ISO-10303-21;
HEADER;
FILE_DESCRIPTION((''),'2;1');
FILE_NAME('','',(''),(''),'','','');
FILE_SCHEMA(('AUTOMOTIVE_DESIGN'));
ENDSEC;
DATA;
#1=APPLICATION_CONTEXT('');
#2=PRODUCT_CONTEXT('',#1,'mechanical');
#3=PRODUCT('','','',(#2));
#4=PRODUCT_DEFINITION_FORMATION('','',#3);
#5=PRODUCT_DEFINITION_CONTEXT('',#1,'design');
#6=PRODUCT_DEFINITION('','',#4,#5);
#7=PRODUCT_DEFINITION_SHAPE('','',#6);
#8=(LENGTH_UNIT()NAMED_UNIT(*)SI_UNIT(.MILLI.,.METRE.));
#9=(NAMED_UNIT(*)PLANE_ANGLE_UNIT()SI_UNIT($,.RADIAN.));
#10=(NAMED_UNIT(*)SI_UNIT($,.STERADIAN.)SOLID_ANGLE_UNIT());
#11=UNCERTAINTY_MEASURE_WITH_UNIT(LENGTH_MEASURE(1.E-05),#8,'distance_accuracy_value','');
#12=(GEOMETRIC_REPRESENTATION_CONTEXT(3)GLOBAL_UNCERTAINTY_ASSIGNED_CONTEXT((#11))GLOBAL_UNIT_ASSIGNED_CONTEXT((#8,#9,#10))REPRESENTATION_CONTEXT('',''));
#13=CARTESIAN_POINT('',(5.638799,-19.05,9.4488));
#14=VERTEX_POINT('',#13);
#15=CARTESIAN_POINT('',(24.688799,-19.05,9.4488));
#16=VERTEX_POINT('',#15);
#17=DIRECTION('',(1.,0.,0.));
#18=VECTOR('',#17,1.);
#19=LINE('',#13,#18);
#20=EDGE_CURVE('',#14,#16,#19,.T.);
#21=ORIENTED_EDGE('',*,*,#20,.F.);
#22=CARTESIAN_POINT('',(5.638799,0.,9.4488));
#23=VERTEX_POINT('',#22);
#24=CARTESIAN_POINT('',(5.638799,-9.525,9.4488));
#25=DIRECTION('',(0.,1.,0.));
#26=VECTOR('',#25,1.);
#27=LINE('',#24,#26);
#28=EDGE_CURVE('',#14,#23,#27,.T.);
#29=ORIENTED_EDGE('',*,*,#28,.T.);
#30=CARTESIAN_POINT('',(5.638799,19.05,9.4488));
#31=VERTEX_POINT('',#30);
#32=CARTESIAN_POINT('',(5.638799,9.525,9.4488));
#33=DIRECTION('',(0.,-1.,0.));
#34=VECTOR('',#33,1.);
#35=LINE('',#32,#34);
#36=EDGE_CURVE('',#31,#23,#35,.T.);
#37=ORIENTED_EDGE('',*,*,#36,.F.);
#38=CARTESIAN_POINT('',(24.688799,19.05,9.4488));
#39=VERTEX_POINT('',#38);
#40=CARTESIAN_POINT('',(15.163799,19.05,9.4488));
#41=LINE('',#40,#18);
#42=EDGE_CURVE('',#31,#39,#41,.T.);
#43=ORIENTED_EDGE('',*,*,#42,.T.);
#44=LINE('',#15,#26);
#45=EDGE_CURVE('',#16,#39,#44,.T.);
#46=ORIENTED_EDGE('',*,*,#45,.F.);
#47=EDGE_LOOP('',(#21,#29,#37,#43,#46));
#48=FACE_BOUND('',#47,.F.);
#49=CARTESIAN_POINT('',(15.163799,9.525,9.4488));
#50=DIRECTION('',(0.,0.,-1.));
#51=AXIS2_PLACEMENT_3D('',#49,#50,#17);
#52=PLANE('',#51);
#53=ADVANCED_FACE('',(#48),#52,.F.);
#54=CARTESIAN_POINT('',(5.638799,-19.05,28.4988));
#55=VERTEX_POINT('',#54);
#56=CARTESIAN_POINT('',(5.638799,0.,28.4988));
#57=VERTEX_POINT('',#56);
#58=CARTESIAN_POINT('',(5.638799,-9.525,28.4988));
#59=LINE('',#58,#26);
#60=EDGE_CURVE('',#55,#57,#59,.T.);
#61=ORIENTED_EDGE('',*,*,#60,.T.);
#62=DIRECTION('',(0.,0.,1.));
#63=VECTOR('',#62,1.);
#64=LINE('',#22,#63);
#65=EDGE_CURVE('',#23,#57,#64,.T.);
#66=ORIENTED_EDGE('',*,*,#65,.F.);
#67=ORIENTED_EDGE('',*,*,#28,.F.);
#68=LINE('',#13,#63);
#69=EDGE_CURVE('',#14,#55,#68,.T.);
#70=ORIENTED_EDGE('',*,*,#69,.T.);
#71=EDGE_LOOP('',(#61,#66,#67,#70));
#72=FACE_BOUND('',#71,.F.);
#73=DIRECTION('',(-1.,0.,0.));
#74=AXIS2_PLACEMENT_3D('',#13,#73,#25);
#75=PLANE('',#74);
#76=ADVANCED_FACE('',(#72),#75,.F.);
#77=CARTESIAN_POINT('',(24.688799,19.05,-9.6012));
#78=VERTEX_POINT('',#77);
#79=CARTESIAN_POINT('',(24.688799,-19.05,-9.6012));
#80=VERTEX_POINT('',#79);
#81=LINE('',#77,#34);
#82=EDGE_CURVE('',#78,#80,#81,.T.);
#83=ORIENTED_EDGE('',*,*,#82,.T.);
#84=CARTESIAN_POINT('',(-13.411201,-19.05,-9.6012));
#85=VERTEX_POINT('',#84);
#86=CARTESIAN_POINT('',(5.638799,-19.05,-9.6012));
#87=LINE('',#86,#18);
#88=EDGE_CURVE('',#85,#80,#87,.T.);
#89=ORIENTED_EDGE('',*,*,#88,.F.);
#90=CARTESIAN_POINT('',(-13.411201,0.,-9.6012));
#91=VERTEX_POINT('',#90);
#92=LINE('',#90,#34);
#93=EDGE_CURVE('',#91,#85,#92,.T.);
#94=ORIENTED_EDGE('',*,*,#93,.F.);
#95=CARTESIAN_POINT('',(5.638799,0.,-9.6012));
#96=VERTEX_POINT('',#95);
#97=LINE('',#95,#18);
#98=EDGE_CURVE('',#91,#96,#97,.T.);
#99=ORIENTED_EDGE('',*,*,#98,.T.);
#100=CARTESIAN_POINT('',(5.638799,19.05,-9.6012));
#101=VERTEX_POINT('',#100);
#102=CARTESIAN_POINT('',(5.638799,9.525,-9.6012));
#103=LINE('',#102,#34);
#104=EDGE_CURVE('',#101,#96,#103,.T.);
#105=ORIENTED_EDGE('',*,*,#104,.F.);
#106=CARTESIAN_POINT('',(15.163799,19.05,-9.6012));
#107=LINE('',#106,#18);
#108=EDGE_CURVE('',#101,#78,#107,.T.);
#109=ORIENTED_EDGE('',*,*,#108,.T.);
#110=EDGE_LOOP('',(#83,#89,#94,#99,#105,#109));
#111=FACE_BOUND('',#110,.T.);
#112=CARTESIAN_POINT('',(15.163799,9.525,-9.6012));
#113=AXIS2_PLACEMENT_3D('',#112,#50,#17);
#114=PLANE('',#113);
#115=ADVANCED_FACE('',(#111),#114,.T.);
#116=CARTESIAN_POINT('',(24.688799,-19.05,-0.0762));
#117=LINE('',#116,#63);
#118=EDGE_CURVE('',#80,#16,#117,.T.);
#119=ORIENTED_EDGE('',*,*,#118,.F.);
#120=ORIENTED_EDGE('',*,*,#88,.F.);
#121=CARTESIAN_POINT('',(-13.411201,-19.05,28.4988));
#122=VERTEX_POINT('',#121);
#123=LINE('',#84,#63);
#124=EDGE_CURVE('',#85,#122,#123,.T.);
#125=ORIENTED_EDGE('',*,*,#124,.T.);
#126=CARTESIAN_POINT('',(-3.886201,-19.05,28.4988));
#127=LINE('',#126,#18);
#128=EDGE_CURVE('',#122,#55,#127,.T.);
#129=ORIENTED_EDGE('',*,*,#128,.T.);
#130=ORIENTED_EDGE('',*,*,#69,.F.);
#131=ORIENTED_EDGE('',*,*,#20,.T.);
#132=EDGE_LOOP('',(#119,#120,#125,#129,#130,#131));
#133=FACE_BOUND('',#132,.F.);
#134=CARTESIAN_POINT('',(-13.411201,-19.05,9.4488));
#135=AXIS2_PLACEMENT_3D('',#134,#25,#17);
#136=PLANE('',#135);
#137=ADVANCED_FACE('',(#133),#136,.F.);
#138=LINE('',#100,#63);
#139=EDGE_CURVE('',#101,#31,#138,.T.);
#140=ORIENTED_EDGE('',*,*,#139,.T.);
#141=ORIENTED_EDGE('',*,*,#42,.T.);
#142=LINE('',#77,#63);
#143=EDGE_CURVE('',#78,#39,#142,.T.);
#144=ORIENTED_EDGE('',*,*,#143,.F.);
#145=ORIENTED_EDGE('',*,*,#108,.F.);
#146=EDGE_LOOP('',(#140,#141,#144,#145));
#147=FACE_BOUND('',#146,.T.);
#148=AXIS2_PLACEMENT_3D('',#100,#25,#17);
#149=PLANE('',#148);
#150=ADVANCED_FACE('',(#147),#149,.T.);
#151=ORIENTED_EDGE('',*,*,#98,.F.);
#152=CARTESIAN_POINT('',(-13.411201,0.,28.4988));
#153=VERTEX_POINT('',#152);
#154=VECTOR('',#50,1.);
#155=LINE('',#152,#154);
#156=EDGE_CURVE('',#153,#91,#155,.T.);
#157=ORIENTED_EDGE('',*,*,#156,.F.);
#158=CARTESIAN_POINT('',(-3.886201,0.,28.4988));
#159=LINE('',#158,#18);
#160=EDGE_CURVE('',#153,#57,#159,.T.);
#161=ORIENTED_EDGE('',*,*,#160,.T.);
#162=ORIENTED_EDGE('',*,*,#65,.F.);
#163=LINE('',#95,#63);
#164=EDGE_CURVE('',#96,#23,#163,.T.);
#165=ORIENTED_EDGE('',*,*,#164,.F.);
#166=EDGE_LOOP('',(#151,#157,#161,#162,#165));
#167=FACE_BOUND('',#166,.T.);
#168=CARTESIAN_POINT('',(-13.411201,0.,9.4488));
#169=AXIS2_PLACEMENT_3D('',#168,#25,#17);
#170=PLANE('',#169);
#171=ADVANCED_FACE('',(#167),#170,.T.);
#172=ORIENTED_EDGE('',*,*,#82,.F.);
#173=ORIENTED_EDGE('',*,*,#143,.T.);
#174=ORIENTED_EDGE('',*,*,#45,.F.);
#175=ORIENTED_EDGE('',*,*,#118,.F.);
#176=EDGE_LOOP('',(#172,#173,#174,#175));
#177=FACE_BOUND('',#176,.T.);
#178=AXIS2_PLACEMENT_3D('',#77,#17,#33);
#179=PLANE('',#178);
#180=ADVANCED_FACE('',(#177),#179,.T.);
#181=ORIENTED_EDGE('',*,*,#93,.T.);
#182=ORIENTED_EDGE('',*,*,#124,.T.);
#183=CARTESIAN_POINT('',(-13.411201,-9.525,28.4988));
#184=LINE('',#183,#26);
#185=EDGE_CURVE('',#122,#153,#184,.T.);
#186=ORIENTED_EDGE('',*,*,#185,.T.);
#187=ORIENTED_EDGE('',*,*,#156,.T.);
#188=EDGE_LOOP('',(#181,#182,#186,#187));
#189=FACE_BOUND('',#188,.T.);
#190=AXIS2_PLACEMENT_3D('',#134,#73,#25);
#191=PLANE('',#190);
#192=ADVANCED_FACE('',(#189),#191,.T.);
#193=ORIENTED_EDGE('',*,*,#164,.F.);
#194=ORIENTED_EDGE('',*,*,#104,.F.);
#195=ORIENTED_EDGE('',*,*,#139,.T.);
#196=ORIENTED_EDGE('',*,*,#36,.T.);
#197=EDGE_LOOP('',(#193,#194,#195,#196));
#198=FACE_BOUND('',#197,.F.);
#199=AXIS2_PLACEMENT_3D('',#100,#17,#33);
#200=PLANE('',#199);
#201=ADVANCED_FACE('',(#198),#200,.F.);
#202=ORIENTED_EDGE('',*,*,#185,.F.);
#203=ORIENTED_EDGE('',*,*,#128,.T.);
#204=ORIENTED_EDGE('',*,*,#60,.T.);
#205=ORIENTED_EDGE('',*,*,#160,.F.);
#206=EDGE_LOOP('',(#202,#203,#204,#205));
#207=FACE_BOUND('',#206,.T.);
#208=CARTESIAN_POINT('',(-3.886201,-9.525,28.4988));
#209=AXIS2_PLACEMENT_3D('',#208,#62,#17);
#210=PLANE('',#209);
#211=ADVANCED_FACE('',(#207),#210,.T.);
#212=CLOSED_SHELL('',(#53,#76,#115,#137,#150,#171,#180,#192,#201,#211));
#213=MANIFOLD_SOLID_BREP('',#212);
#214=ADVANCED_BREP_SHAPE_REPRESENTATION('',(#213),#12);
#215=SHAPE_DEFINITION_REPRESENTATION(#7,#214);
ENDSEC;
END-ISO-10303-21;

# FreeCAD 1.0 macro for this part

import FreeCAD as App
import Part
import Sketcher

V = App.Vector
Q = App.Units.Quantity

doc = App.newDocument("Part")
params = doc.addObject("Spreadsheet::Sheet", "Params")
for row, (alias, value) in enumerate([
    ("sketch1_width", "1.5 in"),
    ("sketch1_height", "0.75 in"),
    ("pad1_length", "0.75 in"),
    ("sketch2_width", "0.75 in"),
    ("pad2_length", "0.75 in"),
    ("sketch3_width", "0.75 in"),
    ("pad3_length", "0.75 in"),
], start=1):
    params.set(f"A{row}", alias)
    params.set(f"B{row}", "=" + value)
    params.setAlias(f"B{row}", alias)

body = doc.addObject("PartDesign::Body", "Body")

sketch1 = body.newObject("Sketcher::SketchObject", "Sketch")
sketch1.AttachmentSupport = (doc.getObject("XZ_Plane"), [""])
sketch1.MapMode = "FlatFace"
sketch1.addGeometry(Part.LineSegment(V(-13, 9, 0), V(-13, -10, 0)), False)
sketch1.addGeometry(Part.LineSegment(V(-13, -10, 0), V(25, -10, 0)), False)
sketch1.addGeometry(Part.LineSegment(V(25, -10, 0), V(25, 9, 0)), False)
sketch1.addGeometry(Part.LineSegment(V(25, 9, 0), V(-13, 9, 0)), False)
sketch1.addConstraint(Sketcher.Constraint("Coincident", 0, 2, 1, 1))
sketch1.addConstraint(Sketcher.Constraint("Coincident", 1, 2, 2, 1))
sketch1.addConstraint(Sketcher.Constraint("Coincident", 2, 2, 3, 1))
sketch1.addConstraint(Sketcher.Constraint("Coincident", 3, 2, 0, 1))
sketch1.addConstraint(Sketcher.Constraint("Vertical", 0))
sketch1.addConstraint(Sketcher.Constraint("Horizontal", 1))
sketch1.addConstraint(Sketcher.Constraint("Vertical", 2))
sketch1.addConstraint(Sketcher.Constraint("Horizontal", 3))
sketch1.addConstraint(Sketcher.Constraint("DistanceX", 1, 1, 1, 2, Q("1.5 in")))
sketch1.addConstraint(Sketcher.Constraint("DistanceY", 0, 2, 0, 1, Q("0.75 in")))
sketch1.addConstraint(Sketcher.Constraint("DistanceX", 0, 2, -1, 1, Q("0.528 in")))
sketch1.addConstraint(Sketcher.Constraint("DistanceY", 0, 2, -1, 1, Q("0.378 in")))
sketch1.setExpression("Constraints[8]", "Params.sketch1_width")
sketch1.setExpression("Constraints[9]", "Params.sketch1_height")
pad1 = body.newObject("PartDesign::Pad", "Pad")
pad1.Profile = sketch1
pad1.setExpression("Length", "Params.pad1_length")

sketch2 = body.newObject("Sketcher::SketchObject", "Sketch001")
sketch2.AttachmentSupport = (doc.getObject("XY_Plane"), [""])
sketch2.MapMode = "FlatFace"
sketch2.AttachmentOffset = App.Placement(V(0, 0, -0.378 * 25.4), App.Rotation())
sketch2.addGeometry(Part.LineSegment(V(6, 0, 0), V(6, 19, 0)), False)
sketch2.addGeometry(Part.LineSegment(V(6, 19, 0), V(25, 19, 0)), False)
sketch2.addGeometry(Part.LineSegment(V(25, 19, 0), V(25, 0, 0)), False)
sketch2.addGeometry(Part.LineSegment(V(25, 0, 0), V(6, 0, 0)), False)
sketch2.addConstraint(Sketcher.Constraint("Coincident", 0, 2, 1, 1))
sketch2.addConstraint(Sketcher.Constraint("Coincident", 1, 2, 2, 1))
sketch2.addConstraint(Sketcher.Constraint("Coincident", 2, 2, 3, 1))
sketch2.addConstraint(Sketcher.Constraint("Coincident", 3, 2, 0, 1))
sketch2.addConstraint(Sketcher.Constraint("Vertical", 0))
sketch2.addConstraint(Sketcher.Constraint("Horizontal", 1))
sketch2.addConstraint(Sketcher.Constraint("Vertical", 2))
sketch2.addConstraint(Sketcher.Constraint("Horizontal", 3))
sketch2.addConstraint(Sketcher.Constraint("PointOnObject", 2, 2, -1))
sketch2.addConstraint(Sketcher.Constraint("Equal", 3, 0))
sketch2.addConstraint(Sketcher.Constraint("DistanceX", 1, 1, 1, 2, Q("0.75 in")))
sketch2.addConstraint(Sketcher.Constraint("DistanceX", -1, 1, 0, 2, Q("0.222 in")))
sketch2.setExpression("Constraints[10]", "Params.sketch2_width")
pad2 = body.newObject("PartDesign::Pad", "Pad001")
pad2.Profile = sketch2
pad2.setExpression("Length", "Params.pad2_length")

sketch3 = body.newObject("Sketcher::SketchObject", "Sketch002")
sketch3.AttachmentSupport = (doc.getObject("XY_Plane"), [""])
sketch3.MapMode = "FlatFace"
sketch3.AttachmentOffset = App.Placement(V(0, 0, 0.372 * 25.4), App.Rotation())
sketch3.addGeometry(Part.LineSegment(V(-13, 0, 0), V(-13, -19, 0)), False)
sketch3.addGeometry(Part.LineSegment(V(-13, -19, 0), V(6, -19, 0)), False)
sketch3.addGeometry(Part.LineSegment(V(6, -19, 0), V(6, 0, 0)), False)
sketch3.addGeometry(Part.LineSegment(V(6, 0, 0), V(-13, 0, 0)), False)
sketch3.addConstraint(Sketcher.Constraint("Coincident", 0, 2, 1, 1))
sketch3.addConstraint(Sketcher.Constraint("Coincident", 1, 2, 2, 1))
sketch3.addConstraint(Sketcher.Constraint("Coincident", 2, 2, 3, 1))
sketch3.addConstraint(Sketcher.Constraint("Coincident", 3, 2, 0, 1))
sketch3.addConstraint(Sketcher.Constraint("Vertical", 0))
sketch3.addConstraint(Sketcher.Constraint("Horizontal", 1))
sketch3.addConstraint(Sketcher.Constraint("Vertical", 2))
sketch3.addConstraint(Sketcher.Constraint("Horizontal", 3))
sketch3.addConstraint(Sketcher.Constraint("PointOnObject", 2, 2, -1))
sketch3.addConstraint(Sketcher.Constraint("Equal", 3, 0))
sketch3.addConstraint(Sketcher.Constraint("DistanceX", 1, 1, 1, 2, Q("0.75 in")))
sketch3.addConstraint(Sketcher.Constraint("DistanceX", 0, 2, -1, 1, Q("0.528 in")))
sketch3.setExpression("Constraints[10]", "Params.sketch3_width")
pad3 = body.newObject("PartDesign::Pad", "Pad002")
pad3.Profile = sketch3
pad3.setExpression("Length", "Params.pad3_length")

doc.recompute()
